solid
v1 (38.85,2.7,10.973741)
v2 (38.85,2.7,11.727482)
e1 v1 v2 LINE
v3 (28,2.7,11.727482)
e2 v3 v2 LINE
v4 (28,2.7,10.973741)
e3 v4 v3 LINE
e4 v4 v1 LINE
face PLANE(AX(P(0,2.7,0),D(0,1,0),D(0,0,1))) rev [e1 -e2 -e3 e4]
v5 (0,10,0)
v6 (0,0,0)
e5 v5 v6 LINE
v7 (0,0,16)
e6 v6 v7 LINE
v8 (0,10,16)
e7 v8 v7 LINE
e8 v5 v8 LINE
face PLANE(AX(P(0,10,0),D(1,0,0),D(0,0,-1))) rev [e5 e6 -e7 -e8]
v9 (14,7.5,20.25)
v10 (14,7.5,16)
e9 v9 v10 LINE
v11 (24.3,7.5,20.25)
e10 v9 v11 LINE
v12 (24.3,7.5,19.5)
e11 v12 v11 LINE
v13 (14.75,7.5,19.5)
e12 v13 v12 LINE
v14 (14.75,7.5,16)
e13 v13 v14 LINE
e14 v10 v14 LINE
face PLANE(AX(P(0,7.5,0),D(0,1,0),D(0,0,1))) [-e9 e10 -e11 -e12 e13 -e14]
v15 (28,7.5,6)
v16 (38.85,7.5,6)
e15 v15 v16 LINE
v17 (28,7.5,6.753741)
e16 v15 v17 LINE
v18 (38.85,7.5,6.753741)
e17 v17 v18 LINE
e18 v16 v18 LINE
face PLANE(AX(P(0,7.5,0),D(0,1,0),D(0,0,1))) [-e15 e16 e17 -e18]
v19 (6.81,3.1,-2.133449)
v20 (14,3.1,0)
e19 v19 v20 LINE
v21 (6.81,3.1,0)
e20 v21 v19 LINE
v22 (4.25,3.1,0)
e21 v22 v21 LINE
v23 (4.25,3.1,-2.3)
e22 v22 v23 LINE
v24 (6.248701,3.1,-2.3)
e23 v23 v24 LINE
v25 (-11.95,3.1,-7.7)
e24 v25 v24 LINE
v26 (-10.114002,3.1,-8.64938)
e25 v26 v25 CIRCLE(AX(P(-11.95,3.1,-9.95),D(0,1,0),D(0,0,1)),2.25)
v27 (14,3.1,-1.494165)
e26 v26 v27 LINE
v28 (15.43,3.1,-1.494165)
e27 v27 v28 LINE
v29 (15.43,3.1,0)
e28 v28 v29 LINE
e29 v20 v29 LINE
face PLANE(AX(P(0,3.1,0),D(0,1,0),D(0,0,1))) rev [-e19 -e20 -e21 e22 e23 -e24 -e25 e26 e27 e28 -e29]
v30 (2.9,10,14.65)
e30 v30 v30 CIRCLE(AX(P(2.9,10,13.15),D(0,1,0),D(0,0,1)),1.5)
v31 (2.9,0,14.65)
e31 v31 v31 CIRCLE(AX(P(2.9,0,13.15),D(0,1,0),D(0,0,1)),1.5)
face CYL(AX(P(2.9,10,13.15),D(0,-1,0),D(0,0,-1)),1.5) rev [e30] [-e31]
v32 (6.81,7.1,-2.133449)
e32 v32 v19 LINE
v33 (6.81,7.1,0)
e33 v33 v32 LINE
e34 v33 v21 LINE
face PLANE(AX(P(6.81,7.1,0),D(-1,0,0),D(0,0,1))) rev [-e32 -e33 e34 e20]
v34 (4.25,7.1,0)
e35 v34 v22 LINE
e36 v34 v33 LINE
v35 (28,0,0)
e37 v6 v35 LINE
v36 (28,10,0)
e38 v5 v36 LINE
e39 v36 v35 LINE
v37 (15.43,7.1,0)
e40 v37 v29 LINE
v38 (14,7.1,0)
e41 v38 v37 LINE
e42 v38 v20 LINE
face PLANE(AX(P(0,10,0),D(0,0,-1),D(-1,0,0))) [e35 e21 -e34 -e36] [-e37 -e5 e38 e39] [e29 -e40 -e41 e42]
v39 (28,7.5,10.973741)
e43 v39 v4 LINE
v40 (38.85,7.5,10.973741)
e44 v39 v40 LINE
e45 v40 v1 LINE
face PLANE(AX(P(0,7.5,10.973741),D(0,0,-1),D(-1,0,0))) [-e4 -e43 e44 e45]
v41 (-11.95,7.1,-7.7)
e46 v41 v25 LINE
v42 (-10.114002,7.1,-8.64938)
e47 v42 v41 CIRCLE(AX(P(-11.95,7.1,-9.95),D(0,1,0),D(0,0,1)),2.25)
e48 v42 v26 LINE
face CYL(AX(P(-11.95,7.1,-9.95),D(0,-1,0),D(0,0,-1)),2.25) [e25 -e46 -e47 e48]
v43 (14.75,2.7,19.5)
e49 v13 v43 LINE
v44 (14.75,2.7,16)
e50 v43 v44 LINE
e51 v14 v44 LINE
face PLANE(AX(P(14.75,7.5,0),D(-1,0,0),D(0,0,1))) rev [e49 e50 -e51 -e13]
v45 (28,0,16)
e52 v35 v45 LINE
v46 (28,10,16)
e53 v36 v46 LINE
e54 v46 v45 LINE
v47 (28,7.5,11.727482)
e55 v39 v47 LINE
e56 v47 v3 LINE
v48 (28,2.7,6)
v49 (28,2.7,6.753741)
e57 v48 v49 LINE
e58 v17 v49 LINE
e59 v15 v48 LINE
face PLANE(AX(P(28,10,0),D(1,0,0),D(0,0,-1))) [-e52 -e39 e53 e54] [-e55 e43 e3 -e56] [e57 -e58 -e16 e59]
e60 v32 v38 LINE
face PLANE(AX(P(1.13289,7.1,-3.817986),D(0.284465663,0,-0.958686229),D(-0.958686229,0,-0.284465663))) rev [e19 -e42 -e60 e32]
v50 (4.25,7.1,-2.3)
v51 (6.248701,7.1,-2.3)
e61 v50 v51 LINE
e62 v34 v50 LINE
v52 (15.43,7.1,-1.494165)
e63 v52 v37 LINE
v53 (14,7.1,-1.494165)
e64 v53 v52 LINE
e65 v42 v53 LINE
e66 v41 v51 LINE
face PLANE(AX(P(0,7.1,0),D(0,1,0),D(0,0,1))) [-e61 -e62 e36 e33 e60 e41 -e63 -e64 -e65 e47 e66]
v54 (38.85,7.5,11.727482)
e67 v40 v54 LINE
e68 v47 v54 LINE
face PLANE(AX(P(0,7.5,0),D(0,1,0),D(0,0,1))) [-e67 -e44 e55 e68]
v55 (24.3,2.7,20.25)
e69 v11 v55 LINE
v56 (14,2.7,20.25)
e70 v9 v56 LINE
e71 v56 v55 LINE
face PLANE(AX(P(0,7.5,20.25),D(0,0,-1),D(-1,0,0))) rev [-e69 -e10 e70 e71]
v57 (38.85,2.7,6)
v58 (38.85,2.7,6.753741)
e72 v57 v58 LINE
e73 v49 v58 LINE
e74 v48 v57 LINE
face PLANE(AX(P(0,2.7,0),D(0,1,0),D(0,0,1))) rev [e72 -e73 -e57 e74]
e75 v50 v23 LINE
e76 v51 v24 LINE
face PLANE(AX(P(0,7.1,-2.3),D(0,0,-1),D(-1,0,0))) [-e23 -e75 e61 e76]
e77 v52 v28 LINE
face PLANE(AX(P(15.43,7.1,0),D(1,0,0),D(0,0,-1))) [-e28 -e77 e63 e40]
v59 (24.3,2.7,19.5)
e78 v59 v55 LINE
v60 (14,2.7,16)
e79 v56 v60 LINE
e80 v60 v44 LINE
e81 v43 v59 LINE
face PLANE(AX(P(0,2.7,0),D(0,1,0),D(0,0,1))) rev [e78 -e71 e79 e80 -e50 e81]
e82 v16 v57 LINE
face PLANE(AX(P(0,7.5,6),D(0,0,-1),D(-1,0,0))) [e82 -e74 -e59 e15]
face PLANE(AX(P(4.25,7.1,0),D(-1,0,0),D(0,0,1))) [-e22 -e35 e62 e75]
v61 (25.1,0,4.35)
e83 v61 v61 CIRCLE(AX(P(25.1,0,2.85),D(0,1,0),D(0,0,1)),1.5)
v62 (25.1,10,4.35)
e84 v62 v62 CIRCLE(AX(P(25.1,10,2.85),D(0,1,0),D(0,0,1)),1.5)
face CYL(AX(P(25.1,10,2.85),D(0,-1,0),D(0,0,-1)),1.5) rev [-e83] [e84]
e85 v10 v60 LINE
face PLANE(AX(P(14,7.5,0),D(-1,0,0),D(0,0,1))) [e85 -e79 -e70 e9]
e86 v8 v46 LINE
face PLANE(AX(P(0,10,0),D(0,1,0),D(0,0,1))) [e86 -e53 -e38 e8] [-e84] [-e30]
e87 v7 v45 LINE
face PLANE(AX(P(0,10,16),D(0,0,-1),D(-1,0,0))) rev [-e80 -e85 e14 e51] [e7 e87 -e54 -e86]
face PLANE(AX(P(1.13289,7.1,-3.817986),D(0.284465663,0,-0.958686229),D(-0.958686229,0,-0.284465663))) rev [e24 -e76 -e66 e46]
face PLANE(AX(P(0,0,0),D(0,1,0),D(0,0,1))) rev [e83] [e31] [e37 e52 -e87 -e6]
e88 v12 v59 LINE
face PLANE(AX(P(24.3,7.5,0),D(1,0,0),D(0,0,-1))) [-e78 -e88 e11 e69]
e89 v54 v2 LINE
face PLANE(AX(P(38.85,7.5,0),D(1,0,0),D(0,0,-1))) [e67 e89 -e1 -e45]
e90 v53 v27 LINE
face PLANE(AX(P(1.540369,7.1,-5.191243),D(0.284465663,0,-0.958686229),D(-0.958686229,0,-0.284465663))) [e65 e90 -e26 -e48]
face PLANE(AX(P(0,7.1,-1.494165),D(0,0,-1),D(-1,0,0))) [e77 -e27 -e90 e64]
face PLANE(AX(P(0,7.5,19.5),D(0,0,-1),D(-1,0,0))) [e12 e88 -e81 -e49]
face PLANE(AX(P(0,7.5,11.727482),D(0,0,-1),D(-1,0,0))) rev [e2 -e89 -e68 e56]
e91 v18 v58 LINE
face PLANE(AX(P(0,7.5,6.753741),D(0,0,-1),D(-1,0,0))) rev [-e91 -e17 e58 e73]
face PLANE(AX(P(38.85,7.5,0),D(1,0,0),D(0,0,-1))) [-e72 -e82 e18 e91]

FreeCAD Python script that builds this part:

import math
import FreeCAD as App
import Part
import Sketcher
from FreeCAD import Vector

doc = App.newDocument("Part")
body = doc.addObject("PartDesign::Body", "Body")

# Sketch on XZ plane
sketch1 = body.newObject("Sketcher::SketchObject", "Sketch")
sketch1.AttachmentSupport = (doc.getObject("XZ_Plane"), [""])
sketch1.MapMode = "FlatFace"
sketch1.addGeometry(Part.LineSegment(Vector(0, 0, 0), Vector(0, 16, 0)), False)
sketch1.addGeometry(Part.LineSegment(Vector(0, 16, 0), Vector(28, 16, 0)), False)
sketch1.addGeometry(Part.LineSegment(Vector(28, 16, 0), Vector(28, 0, 0)), False)
sketch1.addGeometry(Part.LineSegment(Vector(28, 0, 0), Vector(0, 0, 0)), False)
sketch1.addGeometry(Part.Circle(Vector(2.9, 13.2, 0), Vector(0, 0, 1), 1.5), False)
sketch1.addGeometry(Part.Circle(Vector(25.1, 2.9, 0), Vector(0, 0, 1), 1.5), False)
sketch1.addConstraint(Sketcher.Constraint("Coincident", 0, 2, 1, 1))
sketch1.addConstraint(Sketcher.Constraint("Coincident", 1, 2, 2, 1))
sketch1.addConstraint(Sketcher.Constraint("Coincident", 2, 2, 3, 1))
sketch1.addConstraint(Sketcher.Constraint("Coincident", 3, 2, 0, 1))
sketch1.addConstraint(Sketcher.Constraint("Vertical", 0))
sketch1.addConstraint(Sketcher.Constraint("Horizontal", 1))
sketch1.addConstraint(Sketcher.Constraint("Vertical", 2))
sketch1.addConstraint(Sketcher.Constraint("Horizontal", 3))
sketch1.addConstraint(Sketcher.Constraint("Coincident", 3, 2, -1, 1))
sketch1.addConstraint(Sketcher.Constraint("Equal", 4, 5))
sketch1.addConstraint(Sketcher.Constraint("Diameter", 4, 3.0))
sketch1.addConstraint(Sketcher.Constraint("DistanceX", 1, 1, 1, 2, 28.0))
sketch1.addConstraint(Sketcher.Constraint("DistanceY", 0, 1, 0, 2, 16.0))
sketch1.addConstraint(Sketcher.Constraint("DistanceX", -1, 1, 4, 3, 2.9))
sketch1.addConstraint(Sketcher.Constraint("DistanceX", -1, 1, 5, 3, 25.1))
sketch1.addConstraint(Sketcher.Constraint("DistanceY", 5, 3, 4, 3, 10.3))
sketch1.addConstraint(Sketcher.Constraint("DistanceY", -1, 1, 4, 3, 13.15))
pad1 = body.newObject("PartDesign::Pad", "Pad")
pad1.Profile = sketch1
pad1.Length = 10
pad1.Reversed = True

# Sketch on XZ plane
sketch2 = body.newObject("Sketcher::SketchObject", "Sketch001")
sketch2.AttachmentSupport = (doc.getObject("XZ_Plane"), [""])
sketch2.MapMode = "FlatFace"
sketch2.AttachmentOffset = App.Placement(Vector(0, 0, -3.1), App.Rotation())
sketch2.addGeometry(Part.LineSegment(Vector(6.8, -2.1, 0), Vector(14, 0, 0)), False)
sketch2.addGeometry(Part.LineSegment(Vector(14, 0, 0), Vector(15.4, 0, 0)), False)
sketch2.addGeometry(Part.LineSegment(Vector(15.4, 0, 0), Vector(15.4, -1.5, 0)), False)
sketch2.addGeometry(Part.LineSegment(Vector(15.4, -1.5, 0), Vector(14, -1.5, 0)), False)
sketch2.addGeometry(Part.LineSegment(Vector(14, -1.5, 0), Vector(-10.1, -8.6, 0)), False)
sketch2.addGeometry(Part.ArcOfCircle(Part.Circle(Vector(-11.9, -9.9, 0), Vector(0, 0, 1), 2.2), math.radians(90), math.radians(395)), False)
sketch2.addGeometry(Part.LineSegment(Vector(-11.9, -7.7, 0), Vector(6.2, -2.3, 0)), False)
sketch2.addGeometry(Part.LineSegment(Vector(6.2, -2.3, 0), Vector(4.2, -2.3, 0)), False)
sketch2.addGeometry(Part.LineSegment(Vector(4.2, -2.3, 0), Vector(4.2, 0, 0)), False)
sketch2.addGeometry(Part.LineSegment(Vector(4.2, 0, 0), Vector(6.8, 0, 0)), False)
sketch2.addGeometry(Part.LineSegment(Vector(6.8, 0, 0), Vector(6.8, -2.1, 0)), False)
sketch2.addConstraint(Sketcher.Constraint("Coincident", 0, 2, 1, 1))
sketch2.addConstraint(Sketcher.Constraint("Coincident", 1, 2, 2, 1))
sketch2.addConstraint(Sketcher.Constraint("Coincident", 2, 2, 3, 1))
sketch2.addConstraint(Sketcher.Constraint("Coincident", 3, 2, 4, 1))
sketch2.addConstraint(Sketcher.Constraint("Coincident", 4, 2, 5, 2))
sketch2.addConstraint(Sketcher.Constraint("Coincident", 5, 1, 6, 1))
sketch2.addConstraint(Sketcher.Constraint("Coincident", 6, 2, 7, 1))
sketch2.addConstraint(Sketcher.Constraint("Coincident", 7, 2, 8, 1))
sketch2.addConstraint(Sketcher.Constraint("Coincident", 8, 2, 9, 1))
sketch2.addConstraint(Sketcher.Constraint("Coincident", 9, 2, 10, 1))
sketch2.addConstraint(Sketcher.Constraint("Coincident", 10, 2, 0, 1))
sketch2.addConstraint(Sketcher.Constraint("Horizontal", 1))
sketch2.addConstraint(Sketcher.Constraint("Vertical", 2))
sketch2.addConstraint(Sketcher.Constraint("Horizontal", 3))
sketch2.addConstraint(Sketcher.Constraint("Horizontal", 7))
sketch2.addConstraint(Sketcher.Constraint("Vertical", 8))
sketch2.addConstraint(Sketcher.Constraint("Horizontal", 9))
sketch2.addConstraint(Sketcher.Constraint("Vertical", 10))
sketch2.addConstraint(Sketcher.Constraint("PointOnObject", 0, 2, -1))
sketch2.addConstraint(Sketcher.Constraint("PointOnObject", 8, 2, -1))
sketch2.addConstraint(Sketcher.Constraint("Parallel", 0, 4))
sketch2.addConstraint(Sketcher.Constraint("Parallel", 4, 6))
sketch2.addConstraint(Sketcher.Constraint("Vertical", 0, 2, 3, 2))
sketch2.addConstraint(Sketcher.Constraint("Radius", 5, 2.25))
sketch2.addConstraint(Sketcher.Constraint("DistanceY", 8, 1, 8, 2, 2.3))
sketch2.addConstraint(Sketcher.Constraint("DistanceX", -1, 1, 0, 2, 14.0))
sketch2.addConstraint(Sketcher.Constraint("DistanceX", 1, 1, 1, 2, 1.43))
sketch2.addConstraint(Sketcher.Constraint("DistanceX", 9, 1, 9, 2, 2.56))
sketch2.addConstraint(Sketcher.Constraint("DistanceY", 5, 1, -1, 1, 7.7))
sketch2.addConstraint(Sketcher.Constraint("DistanceX", 5, 3, -1, 1, 11.95))
sketch2.addConstraint(Sketcher.Constraint("DistanceX", 5, 1, -1, 1, 11.95))
sketch2.addConstraint(Sketcher.Constraint("DistanceX", -1, 1, 7, 2, 4.25))
sketch2.addConstraint(Sketcher.Constraint("DistanceX", 7, 2, 7, 1, 1.998701))
sketch2.addConstraint(Sketcher.Constraint("DistanceY", 2, 2, 2, 1, 1.494165))
pad2 = body.newObject("PartDesign::Pad", "Pad001")
pad2.Profile = sketch2
pad2.Length = 4
pad2.Reversed = True

# Sketch on XZ plane
sketch3 = body.newObject("Sketcher::SketchObject", "Sketch002")
sketch3.AttachmentSupport = (doc.getObject("XZ_Plane"), [""])
sketch3.MapMode = "FlatFace"
sketch3.AttachmentOffset = App.Placement(Vector(0, 0, -2.7), App.Rotation())
sketch3.addGeometry(Part.LineSegment(Vector(14.8, 16, 0), Vector(14, 16, 0)), False)
sketch3.addGeometry(Part.LineSegment(Vector(14, 16, 0), Vector(14, 20.2, 0)), False)
sketch3.addGeometry(Part.LineSegment(Vector(14, 20.2, 0), Vector(24.3, 20.2, 0)), False)
sketch3.addGeometry(Part.LineSegment(Vector(24.3, 20.2, 0), Vector(24.3, 19.5, 0)), False)
sketch3.addGeometry(Part.LineSegment(Vector(24.3, 19.5, 0), Vector(14.8, 19.5, 0)), False)
sketch3.addGeometry(Part.LineSegment(Vector(14.8, 19.5, 0), Vector(14.8, 16, 0)), False)
sketch3.addGeometry(Part.LineSegment(Vector(28, 11, 0), Vector(28, 11.7, 0)), False)
sketch3.addGeometry(Part.LineSegment(Vector(28, 11.7, 0), Vector(38.9, 11.7, 0)), False)
sketch3.addGeometry(Part.LineSegment(Vector(38.9, 11.7, 0), Vector(38.9, 11, 0)), False)
sketch3.addGeometry(Part.LineSegment(Vector(38.9, 11, 0), Vector(28, 11, 0)), False)
sketch3.addGeometry(Part.LineSegment(Vector(28, 6, 0), Vector(28, 6.8, 0)), False)
sketch3.addGeometry(Part.LineSegment(Vector(28, 6.8, 0), Vector(38.9, 6.8, 0)), False)
sketch3.addGeometry(Part.LineSegment(Vector(38.9, 6.8, 0), Vector(38.9, 6, 0)), False)
sketch3.addGeometry(Part.LineSegment(Vector(38.9, 6, 0), Vector(28, 6, 0)), False)
sketch3.addConstraint(Sketcher.Constraint("Coincident", 0, 2, 1, 1))
sketch3.addConstraint(Sketcher.Constraint("Coincident", 1, 2, 2, 1))
sketch3.addConstraint(Sketcher.Constraint("Coincident", 2, 2, 3, 1))
sketch3.addConstraint(Sketcher.Constraint("Coincident", 3, 2, 4, 1))
sketch3.addConstraint(Sketcher.Constraint("Coincident", 4, 2, 5, 1))
sketch3.addConstraint(Sketcher.Constraint("Coincident", 5, 2, 0, 1))
sketch3.addConstraint(Sketcher.Constraint("Coincident", 6, 2, 7, 1))
sketch3.addConstraint(Sketcher.Constraint("Coincident", 7, 2, 8, 1))
sketch3.addConstraint(Sketcher.Constraint("Coincident", 8, 2, 9, 1))
sketch3.addConstraint(Sketcher.Constraint("Coincident", 9, 2, 6, 1))
sketch3.addConstraint(Sketcher.Constraint("Coincident", 10, 2, 11, 1))
sketch3.addConstraint(Sketcher.Constraint("Coincident", 11, 2, 12, 1))
sketch3.addConstraint(Sketcher.Constraint("Coincident", 12, 2, 13, 1))
sketch3.addConstraint(Sketcher.Constraint("Coincident", 13, 2, 10, 1))
sketch3.addConstraint(Sketcher.Constraint("Horizontal", 0))
sketch3.addConstraint(Sketcher.Constraint("Vertical", 1))
sketch3.addConstraint(Sketcher.Constraint("Horizontal", 2))
sketch3.addConstraint(Sketcher.Constraint("Vertical", 3))
sketch3.addConstraint(Sketcher.Constraint("Horizontal", 4))
sketch3.addConstraint(Sketcher.Constraint("Vertical", 5))
sketch3.addConstraint(Sketcher.Constraint("Vertical", 6))
sketch3.addConstraint(Sketcher.Constraint("Horizontal", 7))
sketch3.addConstraint(Sketcher.Constraint("Vertical", 8))
sketch3.addConstraint(Sketcher.Constraint("Horizontal", 9))
sketch3.addConstraint(Sketcher.Constraint("Vertical", 10))
sketch3.addConstraint(Sketcher.Constraint("Horizontal", 11))
sketch3.addConstraint(Sketcher.Constraint("Vertical", 12))
sketch3.addConstraint(Sketcher.Constraint("Horizontal", 13))
sketch3.addConstraint(Sketcher.Constraint("Vertical", 9, 2, 10, 2))
sketch3.addConstraint(Sketcher.Constraint("Vertical", 8, 2, 11, 2))
sketch3.addConstraint(Sketcher.Constraint("Equal", 0, 3))
sketch3.addConstraint(Sketcher.Constraint("Equal", 8, 10))
sketch3.addConstraint(Sketcher.Constraint("DistanceX", 2, 1, 2, 2, 10.3))
sketch3.addConstraint(Sketcher.Constraint("DistanceY", 5, 2, 5, 1, 3.5))
sketch3.addConstraint(Sketcher.Constraint("DistanceX", -1, 1, 0, 2, 14.0))
sketch3.addConstraint(Sketcher.Constraint("DistanceY", -1, 1, 0, 2, 16.0))
sketch3.addConstraint(Sketcher.Constraint("DistanceX", -1, 1, 6, 2, 28.0))
sketch3.addConstraint(Sketcher.Constraint("DistanceY", -1, 1, 12, 2, 6.0))
sketch3.addConstraint(Sketcher.Constraint("DistanceX", 0, 2, 0, 1, 0.75))
sketch3.addConstraint(Sketcher.Constraint("DistanceX", 7, 1, 7, 2, 10.85))
sketch3.addConstraint(Sketcher.Constraint("DistanceY", 10, 2, 9, 2, 4.22))
sketch3.addConstraint(Sketcher.Constraint("DistanceY", 6, 1, 6, 2, 0.753741))
pad3 = body.newObject("PartDesign::Pad", "Pad002")
pad3.Profile = sketch3
pad3.Length = 4.8
pad3.Reversed = True

doc.recompute()
